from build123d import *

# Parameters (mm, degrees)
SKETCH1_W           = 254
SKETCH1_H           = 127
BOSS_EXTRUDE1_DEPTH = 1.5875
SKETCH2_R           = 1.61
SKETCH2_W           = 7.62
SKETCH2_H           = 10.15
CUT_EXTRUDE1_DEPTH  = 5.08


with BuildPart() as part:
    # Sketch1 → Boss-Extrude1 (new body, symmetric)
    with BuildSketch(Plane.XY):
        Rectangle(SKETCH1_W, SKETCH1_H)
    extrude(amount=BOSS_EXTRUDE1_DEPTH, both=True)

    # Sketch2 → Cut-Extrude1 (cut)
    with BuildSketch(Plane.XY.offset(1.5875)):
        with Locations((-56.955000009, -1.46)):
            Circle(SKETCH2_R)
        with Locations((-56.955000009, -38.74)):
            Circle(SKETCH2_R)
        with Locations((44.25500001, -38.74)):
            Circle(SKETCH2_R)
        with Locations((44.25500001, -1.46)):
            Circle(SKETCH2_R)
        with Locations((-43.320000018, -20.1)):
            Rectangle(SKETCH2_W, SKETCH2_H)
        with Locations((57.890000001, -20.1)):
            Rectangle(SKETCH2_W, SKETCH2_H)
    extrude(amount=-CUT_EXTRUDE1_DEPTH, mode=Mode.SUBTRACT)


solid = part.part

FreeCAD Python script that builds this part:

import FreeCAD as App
import Part
import Sketcher
from FreeCAD import Vector
Q = App.Units.Quantity

doc = App.newDocument("Part")
body = doc.addObject("PartDesign::Body", "Body")

# Sketch on XY plane
sketch1 = body.newObject("Sketcher::SketchObject", "Sketch")
sketch1.AttachmentSupport = (doc.getObject("XY_Plane"), [""])
sketch1.MapMode = "FlatFace"
sketch1.addGeometry(Part.LineSegment(Vector(-127, 64, 0), Vector(-127, -64, 0)), False)
sketch1.addGeometry(Part.LineSegment(Vector(-127, -64, 0), Vector(127, -64, 0)), False)
sketch1.addGeometry(Part.LineSegment(Vector(127, -64, 0), Vector(127, 64, 0)), False)
sketch1.addGeometry(Part.LineSegment(Vector(127, 64, 0), Vector(-127, 64, 0)), False)
sketch1.addConstraint(Sketcher.Constraint("Coincident", 0, 2, 1, 1))
sketch1.addConstraint(Sketcher.Constraint("Coincident", 1, 2, 2, 1))
sketch1.addConstraint(Sketcher.Constraint("Coincident", 2, 2, 3, 1))
sketch1.addConstraint(Sketcher.Constraint("Coincident", 3, 2, 0, 1))
sketch1.addConstraint(Sketcher.Constraint("Vertical", 0))
sketch1.addConstraint(Sketcher.Constraint("Horizontal", 1))
sketch1.addConstraint(Sketcher.Constraint("Vertical", 2))
sketch1.addConstraint(Sketcher.Constraint("Horizontal", 3))
sketch1.addConstraint(Sketcher.Constraint("Symmetric", 0, 2, 2, 2, -1, 1))
sketch1.addConstraint(Sketcher.Constraint("DistanceX", 1, 1, 1, 2, Q("10 in")))
sketch1.addConstraint(Sketcher.Constraint("DistanceY", 0, 2, 0, 1, Q("5 in")))
pad1 = body.newObject("PartDesign::Pad", "Pad")
pad1.Profile = sketch1
pad1.Length = Q("0.125 in")
pad1.Midplane = True

# Sketch on XY plane
sketch2 = body.newObject("Sketcher::SketchObject", "Sketch001")
sketch2.AttachmentSupport = (doc.getObject("XY_Plane"), [""])
sketch2.MapMode = "FlatFace"
sketch2.AttachmentOffset = App.Placement(Vector(0, 0, 0.0625 * 25.4), App.Rotation())
sketch2.addGeometry(Part.Circle(Vector(-57, -1.5, 0), Vector(0, 0, 1), 1.6), False)
sketch2.addGeometry(Part.Circle(Vector(-57, -38.7, 0), Vector(0, 0, 1), 1.6), False)
sketch2.addGeometry(Part.Circle(Vector(44.3, -38.7, 0), Vector(0, 0, 1), 1.6), False)
sketch2.addGeometry(Part.Circle(Vector(44.3, -1.5, 0), Vector(0, 0, 1), 1.6), False)
sketch2.addGeometry(Part.LineSegment(Vector(-47.1, -15, 0), Vector(-47.1, -25.2, 0)), False)
sketch2.addGeometry(Part.LineSegment(Vector(-47.1, -25.2, 0), Vector(-39.5, -25.2, 0)), False)
sketch2.addGeometry(Part.LineSegment(Vector(-39.5, -25.2, 0), Vector(-39.5, -15, 0)), False)
sketch2.addGeometry(Part.LineSegment(Vector(-39.5, -15, 0), Vector(-47.1, -15, 0)), False)
sketch2.addGeometry(Part.LineSegment(Vector(54.1, -15, 0), Vector(54.1, -25.2, 0)), False)
sketch2.addGeometry(Part.LineSegment(Vector(54.1, -25.2, 0), Vector(61.7, -25.2, 0)), False)
sketch2.addGeometry(Part.LineSegment(Vector(61.7, -25.2, 0), Vector(61.7, -15, 0)), False)
sketch2.addGeometry(Part.LineSegment(Vector(61.7, -15, 0), Vector(54.1, -15, 0)), False)
sketch2.addConstraint(Sketcher.Constraint("Coincident", 4, 2, 5, 1))
sketch2.addConstraint(Sketcher.Constraint("Coincident", 5, 2, 6, 1))
sketch2.addConstraint(Sketcher.Constraint("Coincident", 6, 2, 7, 1))
sketch2.addConstraint(Sketcher.Constraint("Coincident", 7, 2, 4, 1))
sketch2.addConstraint(Sketcher.Constraint("Coincident", 8, 2, 9, 1))
sketch2.addConstraint(Sketcher.Constraint("Coincident", 9, 2, 10, 1))
sketch2.addConstraint(Sketcher.Constraint("Coincident", 10, 2, 11, 1))
sketch2.addConstraint(Sketcher.Constraint("Coincident", 11, 2, 8, 1))
sketch2.addConstraint(Sketcher.Constraint("Vertical", 4))
sketch2.addConstraint(Sketcher.Constraint("Horizontal", 5))
sketch2.addConstraint(Sketcher.Constraint("Vertical", 6))
sketch2.addConstraint(Sketcher.Constraint("Horizontal", 7))
sketch2.addConstraint(Sketcher.Constraint("Vertical", 8))
sketch2.addConstraint(Sketcher.Constraint("Horizontal", 9))
sketch2.addConstraint(Sketcher.Constraint("Vertical", 10))
sketch2.addConstraint(Sketcher.Constraint("Horizontal", 11))
sketch2.addConstraint(Sketcher.Constraint("Equal", 0, 1))
sketch2.addConstraint(Sketcher.Constraint("Equal", 1, 2))
sketch2.addConstraint(Sketcher.Constraint("Equal", 2, 3))
sketch2.addConstraint(Sketcher.Constraint("Horizontal", 1, 3, 2, 3))
sketch2.addConstraint(Sketcher.Constraint("Horizontal", 0, 3, 3, 3))
sketch2.addConstraint(Sketcher.Constraint("Horizontal", 5, 2, 8, 2))
sketch2.addConstraint(Sketcher.Constraint("Horizontal", 7, 2, 10, 2))
sketch2.addConstraint(Sketcher.Constraint("Vertical", 0, 3, 1, 3))
sketch2.addConstraint(Sketcher.Constraint("Vertical", 2, 3, 3, 3))
sketch2.addConstraint(Sketcher.Constraint("Equal", 7, 9))
sketch2.addConstraint(Sketcher.Constraint("DistanceX", 5, 1, 5, 2, Q("0.3 in")))
sketch2.addConstraint(Sketcher.Constraint("Diameter", 0, Q("3.22 mm")))
sketch2.addConstraint(Sketcher.Constraint("DistanceY", 4, 2, 4, 1, Q("10.15 mm")))
sketch2.addConstraint(Sketcher.Constraint("DistanceX", 0, 3, -1, 1, Q("56.955 mm")))
sketch2.addConstraint(Sketcher.Constraint("DistanceY", 0, 3, -1, 1, Q("1.46 mm")))
sketch2.addConstraint(Sketcher.Constraint("DistanceY", 1, 3, -1, 1, Q("38.74 mm")))
sketch2.addConstraint(Sketcher.Constraint("DistanceX", -1, 1, 2, 3, Q("44.255 mm")))
sketch2.addConstraint(Sketcher.Constraint("DistanceX", 4, 2, -1, 1, Q("47.13 mm")))
sketch2.addConstraint(Sketcher.Constraint("DistanceY", 4, 2, -1, 1, Q("25.175 mm")))
sketch2.addConstraint(Sketcher.Constraint("DistanceX", -1, 1, 8, 2, Q("54.08 mm")))
pocket1 = body.newObject("PartDesign::Pocket", "Pocket")
pocket1.Profile = sketch2
pocket1.Length = Q("0.2 in")

doc.recompute()
